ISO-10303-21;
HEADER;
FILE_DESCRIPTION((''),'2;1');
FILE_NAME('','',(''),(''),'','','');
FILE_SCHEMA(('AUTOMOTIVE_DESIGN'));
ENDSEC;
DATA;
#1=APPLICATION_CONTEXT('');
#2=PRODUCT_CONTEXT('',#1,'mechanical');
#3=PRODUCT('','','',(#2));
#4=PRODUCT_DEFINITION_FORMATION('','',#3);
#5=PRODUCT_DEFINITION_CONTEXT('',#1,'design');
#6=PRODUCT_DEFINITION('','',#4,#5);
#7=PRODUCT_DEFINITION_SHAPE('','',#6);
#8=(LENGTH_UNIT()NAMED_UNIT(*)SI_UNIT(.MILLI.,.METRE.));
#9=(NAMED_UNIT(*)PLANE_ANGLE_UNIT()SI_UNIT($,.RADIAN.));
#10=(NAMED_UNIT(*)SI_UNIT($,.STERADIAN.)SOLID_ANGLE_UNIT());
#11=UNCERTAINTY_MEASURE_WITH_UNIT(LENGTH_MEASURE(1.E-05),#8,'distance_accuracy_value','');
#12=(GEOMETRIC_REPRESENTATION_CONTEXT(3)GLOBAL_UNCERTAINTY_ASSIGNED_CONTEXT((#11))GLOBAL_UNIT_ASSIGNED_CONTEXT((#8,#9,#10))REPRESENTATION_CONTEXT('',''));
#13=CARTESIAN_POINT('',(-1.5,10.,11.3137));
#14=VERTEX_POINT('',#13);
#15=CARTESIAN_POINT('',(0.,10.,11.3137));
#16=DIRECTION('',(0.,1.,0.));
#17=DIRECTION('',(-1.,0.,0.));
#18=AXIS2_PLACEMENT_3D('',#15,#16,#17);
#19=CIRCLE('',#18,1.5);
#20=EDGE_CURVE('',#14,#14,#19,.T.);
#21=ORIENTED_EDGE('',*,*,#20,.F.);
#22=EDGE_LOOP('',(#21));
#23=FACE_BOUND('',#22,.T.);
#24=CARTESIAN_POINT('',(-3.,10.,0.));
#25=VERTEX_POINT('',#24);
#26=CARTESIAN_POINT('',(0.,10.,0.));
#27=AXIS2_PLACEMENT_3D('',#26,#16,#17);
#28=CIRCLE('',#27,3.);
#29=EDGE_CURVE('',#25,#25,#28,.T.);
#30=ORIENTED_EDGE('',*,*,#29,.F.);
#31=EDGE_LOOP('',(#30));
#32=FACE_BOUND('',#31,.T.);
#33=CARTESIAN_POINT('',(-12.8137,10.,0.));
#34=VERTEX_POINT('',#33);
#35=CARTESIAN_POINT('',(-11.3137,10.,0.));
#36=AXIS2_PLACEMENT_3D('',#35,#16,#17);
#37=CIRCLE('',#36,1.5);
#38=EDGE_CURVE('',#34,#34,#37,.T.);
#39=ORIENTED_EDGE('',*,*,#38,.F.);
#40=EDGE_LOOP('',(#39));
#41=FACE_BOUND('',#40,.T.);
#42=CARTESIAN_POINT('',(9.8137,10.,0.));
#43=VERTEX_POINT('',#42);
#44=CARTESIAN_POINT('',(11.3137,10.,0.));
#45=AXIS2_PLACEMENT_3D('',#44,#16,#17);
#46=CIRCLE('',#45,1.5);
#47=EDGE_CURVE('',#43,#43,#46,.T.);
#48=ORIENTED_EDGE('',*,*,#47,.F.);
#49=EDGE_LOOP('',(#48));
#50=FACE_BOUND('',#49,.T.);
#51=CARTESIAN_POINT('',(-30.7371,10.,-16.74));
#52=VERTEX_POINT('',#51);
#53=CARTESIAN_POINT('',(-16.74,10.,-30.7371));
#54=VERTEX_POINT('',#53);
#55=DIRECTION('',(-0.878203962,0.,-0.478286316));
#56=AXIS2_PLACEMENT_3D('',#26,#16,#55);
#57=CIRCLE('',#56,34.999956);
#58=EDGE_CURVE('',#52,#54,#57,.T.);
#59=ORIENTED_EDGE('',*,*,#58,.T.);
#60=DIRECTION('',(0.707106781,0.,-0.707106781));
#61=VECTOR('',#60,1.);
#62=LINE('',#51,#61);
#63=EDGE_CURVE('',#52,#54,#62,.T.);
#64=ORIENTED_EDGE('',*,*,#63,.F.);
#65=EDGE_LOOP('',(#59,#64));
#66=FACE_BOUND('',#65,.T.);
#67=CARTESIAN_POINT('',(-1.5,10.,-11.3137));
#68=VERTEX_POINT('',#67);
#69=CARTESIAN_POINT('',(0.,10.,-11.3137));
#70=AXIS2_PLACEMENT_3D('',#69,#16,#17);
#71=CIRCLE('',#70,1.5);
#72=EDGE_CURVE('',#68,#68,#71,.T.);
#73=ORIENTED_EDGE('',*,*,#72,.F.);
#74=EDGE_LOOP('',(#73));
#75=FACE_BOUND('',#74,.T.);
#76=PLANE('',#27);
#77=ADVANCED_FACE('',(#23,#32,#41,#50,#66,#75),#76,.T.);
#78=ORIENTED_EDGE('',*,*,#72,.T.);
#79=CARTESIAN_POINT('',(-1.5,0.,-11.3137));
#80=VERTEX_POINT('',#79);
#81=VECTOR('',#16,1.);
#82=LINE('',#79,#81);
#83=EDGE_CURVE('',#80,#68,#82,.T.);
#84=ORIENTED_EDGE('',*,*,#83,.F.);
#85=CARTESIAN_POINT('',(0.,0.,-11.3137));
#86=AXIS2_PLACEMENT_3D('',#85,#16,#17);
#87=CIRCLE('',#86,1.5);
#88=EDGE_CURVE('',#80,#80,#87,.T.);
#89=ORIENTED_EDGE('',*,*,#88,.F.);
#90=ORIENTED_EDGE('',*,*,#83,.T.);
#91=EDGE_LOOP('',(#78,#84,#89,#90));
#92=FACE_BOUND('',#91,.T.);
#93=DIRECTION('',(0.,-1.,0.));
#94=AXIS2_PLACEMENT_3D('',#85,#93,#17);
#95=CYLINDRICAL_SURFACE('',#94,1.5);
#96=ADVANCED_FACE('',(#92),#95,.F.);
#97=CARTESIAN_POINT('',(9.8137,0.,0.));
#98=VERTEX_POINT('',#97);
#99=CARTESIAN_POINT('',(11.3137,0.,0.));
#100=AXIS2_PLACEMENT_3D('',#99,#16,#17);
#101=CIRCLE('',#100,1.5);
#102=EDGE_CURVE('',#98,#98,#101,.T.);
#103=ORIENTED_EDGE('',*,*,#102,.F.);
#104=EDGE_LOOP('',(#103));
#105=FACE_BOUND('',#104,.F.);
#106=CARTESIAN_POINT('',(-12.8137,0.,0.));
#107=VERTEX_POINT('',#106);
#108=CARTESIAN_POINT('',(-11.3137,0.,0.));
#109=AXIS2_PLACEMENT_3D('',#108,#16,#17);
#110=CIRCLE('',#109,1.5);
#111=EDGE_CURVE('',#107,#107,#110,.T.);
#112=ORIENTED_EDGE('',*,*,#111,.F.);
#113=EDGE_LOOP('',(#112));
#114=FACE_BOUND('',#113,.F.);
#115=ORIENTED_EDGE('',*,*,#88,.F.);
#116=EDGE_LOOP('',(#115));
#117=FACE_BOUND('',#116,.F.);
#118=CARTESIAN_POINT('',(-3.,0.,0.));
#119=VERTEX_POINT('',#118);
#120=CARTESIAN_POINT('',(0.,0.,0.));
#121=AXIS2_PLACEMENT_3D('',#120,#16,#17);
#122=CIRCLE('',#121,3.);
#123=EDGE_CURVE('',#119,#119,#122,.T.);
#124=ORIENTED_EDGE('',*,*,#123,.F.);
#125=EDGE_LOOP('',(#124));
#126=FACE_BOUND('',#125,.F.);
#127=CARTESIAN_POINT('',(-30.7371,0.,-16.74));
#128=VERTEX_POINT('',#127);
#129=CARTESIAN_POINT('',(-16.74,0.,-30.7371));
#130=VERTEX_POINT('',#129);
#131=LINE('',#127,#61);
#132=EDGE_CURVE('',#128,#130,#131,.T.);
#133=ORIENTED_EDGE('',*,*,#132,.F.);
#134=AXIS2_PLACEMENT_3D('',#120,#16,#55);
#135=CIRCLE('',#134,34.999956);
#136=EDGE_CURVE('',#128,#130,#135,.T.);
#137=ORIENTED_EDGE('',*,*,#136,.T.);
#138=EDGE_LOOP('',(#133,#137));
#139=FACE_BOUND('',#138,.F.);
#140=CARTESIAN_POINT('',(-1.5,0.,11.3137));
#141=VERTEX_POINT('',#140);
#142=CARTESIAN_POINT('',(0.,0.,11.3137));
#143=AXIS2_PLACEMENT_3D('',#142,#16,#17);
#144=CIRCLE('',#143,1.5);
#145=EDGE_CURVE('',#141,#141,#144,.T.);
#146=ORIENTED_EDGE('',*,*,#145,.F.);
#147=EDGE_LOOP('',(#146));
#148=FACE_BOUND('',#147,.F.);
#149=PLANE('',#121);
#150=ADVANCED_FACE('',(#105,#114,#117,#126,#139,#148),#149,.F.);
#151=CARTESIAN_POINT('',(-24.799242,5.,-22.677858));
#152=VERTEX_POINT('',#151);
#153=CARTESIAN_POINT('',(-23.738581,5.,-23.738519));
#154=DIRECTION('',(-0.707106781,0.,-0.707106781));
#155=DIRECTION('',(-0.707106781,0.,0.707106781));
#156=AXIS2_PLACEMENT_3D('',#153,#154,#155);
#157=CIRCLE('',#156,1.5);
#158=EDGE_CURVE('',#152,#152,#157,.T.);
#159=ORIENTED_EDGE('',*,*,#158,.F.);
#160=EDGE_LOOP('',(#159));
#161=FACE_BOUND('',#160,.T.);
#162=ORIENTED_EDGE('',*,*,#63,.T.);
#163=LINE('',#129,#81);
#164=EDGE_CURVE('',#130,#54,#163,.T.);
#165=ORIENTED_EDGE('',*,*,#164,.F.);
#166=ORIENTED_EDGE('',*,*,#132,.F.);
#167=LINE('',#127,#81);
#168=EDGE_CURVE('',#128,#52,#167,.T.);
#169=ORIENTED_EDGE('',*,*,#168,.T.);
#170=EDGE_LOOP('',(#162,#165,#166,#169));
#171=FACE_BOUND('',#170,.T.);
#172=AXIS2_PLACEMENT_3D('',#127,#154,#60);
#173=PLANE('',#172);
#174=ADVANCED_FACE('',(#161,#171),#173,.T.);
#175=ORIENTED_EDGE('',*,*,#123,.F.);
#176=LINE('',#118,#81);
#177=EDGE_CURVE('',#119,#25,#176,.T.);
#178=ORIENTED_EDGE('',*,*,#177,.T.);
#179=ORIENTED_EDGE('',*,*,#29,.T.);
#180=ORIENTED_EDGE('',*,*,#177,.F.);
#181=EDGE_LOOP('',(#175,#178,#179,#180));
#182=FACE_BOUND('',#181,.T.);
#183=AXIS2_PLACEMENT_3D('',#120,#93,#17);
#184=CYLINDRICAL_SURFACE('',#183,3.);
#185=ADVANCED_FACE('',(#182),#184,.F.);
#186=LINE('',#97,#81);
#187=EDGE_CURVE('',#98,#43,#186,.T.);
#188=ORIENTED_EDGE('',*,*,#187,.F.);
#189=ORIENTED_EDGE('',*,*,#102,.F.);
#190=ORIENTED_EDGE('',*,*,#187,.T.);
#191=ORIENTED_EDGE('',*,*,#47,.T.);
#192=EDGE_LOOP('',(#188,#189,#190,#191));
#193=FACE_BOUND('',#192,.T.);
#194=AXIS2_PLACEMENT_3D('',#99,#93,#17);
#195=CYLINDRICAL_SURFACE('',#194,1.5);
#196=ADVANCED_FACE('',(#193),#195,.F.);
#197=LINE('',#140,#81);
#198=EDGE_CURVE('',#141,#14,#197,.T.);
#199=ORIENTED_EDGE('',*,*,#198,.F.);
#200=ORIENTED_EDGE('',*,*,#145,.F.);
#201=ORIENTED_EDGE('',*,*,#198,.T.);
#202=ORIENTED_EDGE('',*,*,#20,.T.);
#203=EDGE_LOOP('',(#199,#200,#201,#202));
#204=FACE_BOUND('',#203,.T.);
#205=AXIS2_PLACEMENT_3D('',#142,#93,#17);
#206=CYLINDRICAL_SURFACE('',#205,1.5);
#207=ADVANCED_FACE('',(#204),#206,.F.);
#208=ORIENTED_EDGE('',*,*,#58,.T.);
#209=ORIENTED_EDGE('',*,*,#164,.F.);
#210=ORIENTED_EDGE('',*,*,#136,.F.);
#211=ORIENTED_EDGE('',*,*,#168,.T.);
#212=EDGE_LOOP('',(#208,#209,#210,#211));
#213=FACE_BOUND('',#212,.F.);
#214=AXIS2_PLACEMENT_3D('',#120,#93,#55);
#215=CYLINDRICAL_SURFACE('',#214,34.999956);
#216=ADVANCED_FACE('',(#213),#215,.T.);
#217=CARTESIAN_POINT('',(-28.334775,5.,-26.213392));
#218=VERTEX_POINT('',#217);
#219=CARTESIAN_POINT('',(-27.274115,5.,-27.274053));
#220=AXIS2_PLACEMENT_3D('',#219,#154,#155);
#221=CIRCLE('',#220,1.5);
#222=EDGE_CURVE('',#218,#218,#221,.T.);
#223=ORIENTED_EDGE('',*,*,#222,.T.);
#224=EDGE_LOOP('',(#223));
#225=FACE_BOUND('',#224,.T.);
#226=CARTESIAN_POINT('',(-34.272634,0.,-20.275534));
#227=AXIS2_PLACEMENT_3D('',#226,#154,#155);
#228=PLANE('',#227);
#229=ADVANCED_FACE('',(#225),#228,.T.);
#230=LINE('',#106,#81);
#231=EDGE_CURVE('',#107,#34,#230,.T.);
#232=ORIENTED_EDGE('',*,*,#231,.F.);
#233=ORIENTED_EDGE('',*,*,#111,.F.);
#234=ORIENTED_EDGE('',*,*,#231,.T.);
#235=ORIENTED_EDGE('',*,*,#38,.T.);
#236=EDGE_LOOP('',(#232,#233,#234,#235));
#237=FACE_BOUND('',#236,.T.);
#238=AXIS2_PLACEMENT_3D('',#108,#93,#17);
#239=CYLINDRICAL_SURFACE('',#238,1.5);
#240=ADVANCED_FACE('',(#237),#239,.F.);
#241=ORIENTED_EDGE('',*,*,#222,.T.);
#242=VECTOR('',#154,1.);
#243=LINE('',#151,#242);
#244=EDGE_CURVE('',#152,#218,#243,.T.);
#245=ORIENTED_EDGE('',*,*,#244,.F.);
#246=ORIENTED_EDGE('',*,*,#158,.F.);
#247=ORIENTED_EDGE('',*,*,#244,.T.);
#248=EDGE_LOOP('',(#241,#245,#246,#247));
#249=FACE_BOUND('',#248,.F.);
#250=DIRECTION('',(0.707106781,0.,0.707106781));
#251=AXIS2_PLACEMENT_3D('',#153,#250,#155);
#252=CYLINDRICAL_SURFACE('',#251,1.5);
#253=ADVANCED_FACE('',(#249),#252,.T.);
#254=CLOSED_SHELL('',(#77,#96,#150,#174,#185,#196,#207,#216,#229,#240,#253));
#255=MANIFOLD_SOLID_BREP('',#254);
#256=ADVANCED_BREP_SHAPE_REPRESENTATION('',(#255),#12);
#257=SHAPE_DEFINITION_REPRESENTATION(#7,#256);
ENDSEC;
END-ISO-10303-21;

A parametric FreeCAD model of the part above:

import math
import FreeCAD as App
import Part
import Sketcher

V = App.Vector
Q = App.Units.Quantity

doc = App.newDocument("Part")
body = doc.addObject("PartDesign::Body", "Body")

# Sketch on XZ plane
sketch1 = body.newObject("Sketcher::SketchObject", "Sketch")
sketch1.AttachmentSupport = (doc.getObject("XZ_Plane"), [""])
sketch1.MapMode = "FlatFace"
sketch1.addGeometry([
    Part.LineSegment(V(-16.7, -30.7, 0), V(-30.7, -16.7, 0)),  # 0
    Part.ArcOfCircle(Part.Circle(V(0, 0, 0), V(0, 0, 1), 35), math.radians(-119), math.radians(209)),  # 1
    Part.Circle(V(0, -11.3, 0), V(0, 0, 1), 1.5),  # 2
    Part.Circle(V(11.3, 0, 0), V(0, 0, 1), 1.5),  # 3
    Part.Circle(V(0, 0, 0), V(0, 0, 1), 3),  # 4
    Part.Circle(V(-11.3, 0, 0), V(0, 0, 1), 1.5),  # 5
    Part.Circle(V(0, 11.3, 0), V(0, 0, 1), 1.5),  # 6
], False)
sketch1.addConstraint([
    Sketcher.Constraint("Coincident", 0, 1, 1, 1),
    Sketcher.Constraint("Coincident", 1, 2, 0, 2),
    Sketcher.Constraint("Coincident", 1, 3, -1, 1),
    Sketcher.Constraint("Coincident", 4, 3, -1, 1),
    Sketcher.Constraint("Equal", 2, 3),
    Sketcher.Constraint("Equal", 3, 5),
    Sketcher.Constraint("Equal", 5, 6),
    Sketcher.Constraint("Symmetric", 3, 3, 5, 3, -1, 1),
    Sketcher.Constraint("Symmetric", 2, 3, 6, 3, -1, 1),
    Sketcher.Constraint("PointOnObject", 2, 3, -2),
    Sketcher.Constraint("PointOnObject", 3, 3, -1),
    Sketcher.Constraint("Diameter", 2, 3.0),
    Sketcher.Constraint("Diameter", 4, 6.0),
    Sketcher.Constraint("Radius", 1, 35.0),
    Sketcher.Constraint("Angle", 0, Q("135 deg")),
    Sketcher.Constraint("DistanceX", 0, 1, -1, 1, 16.74),
    Sketcher.Constraint("DistanceY", 2, 3, -1, 1, 11.3137),
    Sketcher.Constraint("DistanceX", -1, 1, 3, 3, 11.3137),
])
pad1 = body.newObject("PartDesign::Pad", "Pad")
pad1.Profile = sketch1
pad1.Length = 10
pad1.Reversed = True

# Sketch on an angled plane
sketch2 = body.newObject("Sketcher::SketchObject", "Sketch001")
sketch2.Placement = App.Placement(V(-30.7371, 0, -16.74), App.Rotation(V(-0.707106781, 0, 0.707106781), V(0, 0.999999999, 0), V(-0.707106781, 0, -0.707106781), "ZXY"))
sketch2.addGeometry(Part.Circle(V(-9.9, 5, 0), V(0, 0, 1), 1.5), False)
sketch2.addConstraint([
    Sketcher.Constraint("Diameter", 0, 3.0),
    Sketcher.Constraint("DistanceY", -1, 1, 0, 3, 5.0),
    Sketcher.Constraint("DistanceX", 0, 3, -1, 1, 9.8974),
])
pad2 = body.newObject("PartDesign::Pad", "Pad001")
pad2.Profile = sketch2
pad2.Length = 5

doc.recompute()
